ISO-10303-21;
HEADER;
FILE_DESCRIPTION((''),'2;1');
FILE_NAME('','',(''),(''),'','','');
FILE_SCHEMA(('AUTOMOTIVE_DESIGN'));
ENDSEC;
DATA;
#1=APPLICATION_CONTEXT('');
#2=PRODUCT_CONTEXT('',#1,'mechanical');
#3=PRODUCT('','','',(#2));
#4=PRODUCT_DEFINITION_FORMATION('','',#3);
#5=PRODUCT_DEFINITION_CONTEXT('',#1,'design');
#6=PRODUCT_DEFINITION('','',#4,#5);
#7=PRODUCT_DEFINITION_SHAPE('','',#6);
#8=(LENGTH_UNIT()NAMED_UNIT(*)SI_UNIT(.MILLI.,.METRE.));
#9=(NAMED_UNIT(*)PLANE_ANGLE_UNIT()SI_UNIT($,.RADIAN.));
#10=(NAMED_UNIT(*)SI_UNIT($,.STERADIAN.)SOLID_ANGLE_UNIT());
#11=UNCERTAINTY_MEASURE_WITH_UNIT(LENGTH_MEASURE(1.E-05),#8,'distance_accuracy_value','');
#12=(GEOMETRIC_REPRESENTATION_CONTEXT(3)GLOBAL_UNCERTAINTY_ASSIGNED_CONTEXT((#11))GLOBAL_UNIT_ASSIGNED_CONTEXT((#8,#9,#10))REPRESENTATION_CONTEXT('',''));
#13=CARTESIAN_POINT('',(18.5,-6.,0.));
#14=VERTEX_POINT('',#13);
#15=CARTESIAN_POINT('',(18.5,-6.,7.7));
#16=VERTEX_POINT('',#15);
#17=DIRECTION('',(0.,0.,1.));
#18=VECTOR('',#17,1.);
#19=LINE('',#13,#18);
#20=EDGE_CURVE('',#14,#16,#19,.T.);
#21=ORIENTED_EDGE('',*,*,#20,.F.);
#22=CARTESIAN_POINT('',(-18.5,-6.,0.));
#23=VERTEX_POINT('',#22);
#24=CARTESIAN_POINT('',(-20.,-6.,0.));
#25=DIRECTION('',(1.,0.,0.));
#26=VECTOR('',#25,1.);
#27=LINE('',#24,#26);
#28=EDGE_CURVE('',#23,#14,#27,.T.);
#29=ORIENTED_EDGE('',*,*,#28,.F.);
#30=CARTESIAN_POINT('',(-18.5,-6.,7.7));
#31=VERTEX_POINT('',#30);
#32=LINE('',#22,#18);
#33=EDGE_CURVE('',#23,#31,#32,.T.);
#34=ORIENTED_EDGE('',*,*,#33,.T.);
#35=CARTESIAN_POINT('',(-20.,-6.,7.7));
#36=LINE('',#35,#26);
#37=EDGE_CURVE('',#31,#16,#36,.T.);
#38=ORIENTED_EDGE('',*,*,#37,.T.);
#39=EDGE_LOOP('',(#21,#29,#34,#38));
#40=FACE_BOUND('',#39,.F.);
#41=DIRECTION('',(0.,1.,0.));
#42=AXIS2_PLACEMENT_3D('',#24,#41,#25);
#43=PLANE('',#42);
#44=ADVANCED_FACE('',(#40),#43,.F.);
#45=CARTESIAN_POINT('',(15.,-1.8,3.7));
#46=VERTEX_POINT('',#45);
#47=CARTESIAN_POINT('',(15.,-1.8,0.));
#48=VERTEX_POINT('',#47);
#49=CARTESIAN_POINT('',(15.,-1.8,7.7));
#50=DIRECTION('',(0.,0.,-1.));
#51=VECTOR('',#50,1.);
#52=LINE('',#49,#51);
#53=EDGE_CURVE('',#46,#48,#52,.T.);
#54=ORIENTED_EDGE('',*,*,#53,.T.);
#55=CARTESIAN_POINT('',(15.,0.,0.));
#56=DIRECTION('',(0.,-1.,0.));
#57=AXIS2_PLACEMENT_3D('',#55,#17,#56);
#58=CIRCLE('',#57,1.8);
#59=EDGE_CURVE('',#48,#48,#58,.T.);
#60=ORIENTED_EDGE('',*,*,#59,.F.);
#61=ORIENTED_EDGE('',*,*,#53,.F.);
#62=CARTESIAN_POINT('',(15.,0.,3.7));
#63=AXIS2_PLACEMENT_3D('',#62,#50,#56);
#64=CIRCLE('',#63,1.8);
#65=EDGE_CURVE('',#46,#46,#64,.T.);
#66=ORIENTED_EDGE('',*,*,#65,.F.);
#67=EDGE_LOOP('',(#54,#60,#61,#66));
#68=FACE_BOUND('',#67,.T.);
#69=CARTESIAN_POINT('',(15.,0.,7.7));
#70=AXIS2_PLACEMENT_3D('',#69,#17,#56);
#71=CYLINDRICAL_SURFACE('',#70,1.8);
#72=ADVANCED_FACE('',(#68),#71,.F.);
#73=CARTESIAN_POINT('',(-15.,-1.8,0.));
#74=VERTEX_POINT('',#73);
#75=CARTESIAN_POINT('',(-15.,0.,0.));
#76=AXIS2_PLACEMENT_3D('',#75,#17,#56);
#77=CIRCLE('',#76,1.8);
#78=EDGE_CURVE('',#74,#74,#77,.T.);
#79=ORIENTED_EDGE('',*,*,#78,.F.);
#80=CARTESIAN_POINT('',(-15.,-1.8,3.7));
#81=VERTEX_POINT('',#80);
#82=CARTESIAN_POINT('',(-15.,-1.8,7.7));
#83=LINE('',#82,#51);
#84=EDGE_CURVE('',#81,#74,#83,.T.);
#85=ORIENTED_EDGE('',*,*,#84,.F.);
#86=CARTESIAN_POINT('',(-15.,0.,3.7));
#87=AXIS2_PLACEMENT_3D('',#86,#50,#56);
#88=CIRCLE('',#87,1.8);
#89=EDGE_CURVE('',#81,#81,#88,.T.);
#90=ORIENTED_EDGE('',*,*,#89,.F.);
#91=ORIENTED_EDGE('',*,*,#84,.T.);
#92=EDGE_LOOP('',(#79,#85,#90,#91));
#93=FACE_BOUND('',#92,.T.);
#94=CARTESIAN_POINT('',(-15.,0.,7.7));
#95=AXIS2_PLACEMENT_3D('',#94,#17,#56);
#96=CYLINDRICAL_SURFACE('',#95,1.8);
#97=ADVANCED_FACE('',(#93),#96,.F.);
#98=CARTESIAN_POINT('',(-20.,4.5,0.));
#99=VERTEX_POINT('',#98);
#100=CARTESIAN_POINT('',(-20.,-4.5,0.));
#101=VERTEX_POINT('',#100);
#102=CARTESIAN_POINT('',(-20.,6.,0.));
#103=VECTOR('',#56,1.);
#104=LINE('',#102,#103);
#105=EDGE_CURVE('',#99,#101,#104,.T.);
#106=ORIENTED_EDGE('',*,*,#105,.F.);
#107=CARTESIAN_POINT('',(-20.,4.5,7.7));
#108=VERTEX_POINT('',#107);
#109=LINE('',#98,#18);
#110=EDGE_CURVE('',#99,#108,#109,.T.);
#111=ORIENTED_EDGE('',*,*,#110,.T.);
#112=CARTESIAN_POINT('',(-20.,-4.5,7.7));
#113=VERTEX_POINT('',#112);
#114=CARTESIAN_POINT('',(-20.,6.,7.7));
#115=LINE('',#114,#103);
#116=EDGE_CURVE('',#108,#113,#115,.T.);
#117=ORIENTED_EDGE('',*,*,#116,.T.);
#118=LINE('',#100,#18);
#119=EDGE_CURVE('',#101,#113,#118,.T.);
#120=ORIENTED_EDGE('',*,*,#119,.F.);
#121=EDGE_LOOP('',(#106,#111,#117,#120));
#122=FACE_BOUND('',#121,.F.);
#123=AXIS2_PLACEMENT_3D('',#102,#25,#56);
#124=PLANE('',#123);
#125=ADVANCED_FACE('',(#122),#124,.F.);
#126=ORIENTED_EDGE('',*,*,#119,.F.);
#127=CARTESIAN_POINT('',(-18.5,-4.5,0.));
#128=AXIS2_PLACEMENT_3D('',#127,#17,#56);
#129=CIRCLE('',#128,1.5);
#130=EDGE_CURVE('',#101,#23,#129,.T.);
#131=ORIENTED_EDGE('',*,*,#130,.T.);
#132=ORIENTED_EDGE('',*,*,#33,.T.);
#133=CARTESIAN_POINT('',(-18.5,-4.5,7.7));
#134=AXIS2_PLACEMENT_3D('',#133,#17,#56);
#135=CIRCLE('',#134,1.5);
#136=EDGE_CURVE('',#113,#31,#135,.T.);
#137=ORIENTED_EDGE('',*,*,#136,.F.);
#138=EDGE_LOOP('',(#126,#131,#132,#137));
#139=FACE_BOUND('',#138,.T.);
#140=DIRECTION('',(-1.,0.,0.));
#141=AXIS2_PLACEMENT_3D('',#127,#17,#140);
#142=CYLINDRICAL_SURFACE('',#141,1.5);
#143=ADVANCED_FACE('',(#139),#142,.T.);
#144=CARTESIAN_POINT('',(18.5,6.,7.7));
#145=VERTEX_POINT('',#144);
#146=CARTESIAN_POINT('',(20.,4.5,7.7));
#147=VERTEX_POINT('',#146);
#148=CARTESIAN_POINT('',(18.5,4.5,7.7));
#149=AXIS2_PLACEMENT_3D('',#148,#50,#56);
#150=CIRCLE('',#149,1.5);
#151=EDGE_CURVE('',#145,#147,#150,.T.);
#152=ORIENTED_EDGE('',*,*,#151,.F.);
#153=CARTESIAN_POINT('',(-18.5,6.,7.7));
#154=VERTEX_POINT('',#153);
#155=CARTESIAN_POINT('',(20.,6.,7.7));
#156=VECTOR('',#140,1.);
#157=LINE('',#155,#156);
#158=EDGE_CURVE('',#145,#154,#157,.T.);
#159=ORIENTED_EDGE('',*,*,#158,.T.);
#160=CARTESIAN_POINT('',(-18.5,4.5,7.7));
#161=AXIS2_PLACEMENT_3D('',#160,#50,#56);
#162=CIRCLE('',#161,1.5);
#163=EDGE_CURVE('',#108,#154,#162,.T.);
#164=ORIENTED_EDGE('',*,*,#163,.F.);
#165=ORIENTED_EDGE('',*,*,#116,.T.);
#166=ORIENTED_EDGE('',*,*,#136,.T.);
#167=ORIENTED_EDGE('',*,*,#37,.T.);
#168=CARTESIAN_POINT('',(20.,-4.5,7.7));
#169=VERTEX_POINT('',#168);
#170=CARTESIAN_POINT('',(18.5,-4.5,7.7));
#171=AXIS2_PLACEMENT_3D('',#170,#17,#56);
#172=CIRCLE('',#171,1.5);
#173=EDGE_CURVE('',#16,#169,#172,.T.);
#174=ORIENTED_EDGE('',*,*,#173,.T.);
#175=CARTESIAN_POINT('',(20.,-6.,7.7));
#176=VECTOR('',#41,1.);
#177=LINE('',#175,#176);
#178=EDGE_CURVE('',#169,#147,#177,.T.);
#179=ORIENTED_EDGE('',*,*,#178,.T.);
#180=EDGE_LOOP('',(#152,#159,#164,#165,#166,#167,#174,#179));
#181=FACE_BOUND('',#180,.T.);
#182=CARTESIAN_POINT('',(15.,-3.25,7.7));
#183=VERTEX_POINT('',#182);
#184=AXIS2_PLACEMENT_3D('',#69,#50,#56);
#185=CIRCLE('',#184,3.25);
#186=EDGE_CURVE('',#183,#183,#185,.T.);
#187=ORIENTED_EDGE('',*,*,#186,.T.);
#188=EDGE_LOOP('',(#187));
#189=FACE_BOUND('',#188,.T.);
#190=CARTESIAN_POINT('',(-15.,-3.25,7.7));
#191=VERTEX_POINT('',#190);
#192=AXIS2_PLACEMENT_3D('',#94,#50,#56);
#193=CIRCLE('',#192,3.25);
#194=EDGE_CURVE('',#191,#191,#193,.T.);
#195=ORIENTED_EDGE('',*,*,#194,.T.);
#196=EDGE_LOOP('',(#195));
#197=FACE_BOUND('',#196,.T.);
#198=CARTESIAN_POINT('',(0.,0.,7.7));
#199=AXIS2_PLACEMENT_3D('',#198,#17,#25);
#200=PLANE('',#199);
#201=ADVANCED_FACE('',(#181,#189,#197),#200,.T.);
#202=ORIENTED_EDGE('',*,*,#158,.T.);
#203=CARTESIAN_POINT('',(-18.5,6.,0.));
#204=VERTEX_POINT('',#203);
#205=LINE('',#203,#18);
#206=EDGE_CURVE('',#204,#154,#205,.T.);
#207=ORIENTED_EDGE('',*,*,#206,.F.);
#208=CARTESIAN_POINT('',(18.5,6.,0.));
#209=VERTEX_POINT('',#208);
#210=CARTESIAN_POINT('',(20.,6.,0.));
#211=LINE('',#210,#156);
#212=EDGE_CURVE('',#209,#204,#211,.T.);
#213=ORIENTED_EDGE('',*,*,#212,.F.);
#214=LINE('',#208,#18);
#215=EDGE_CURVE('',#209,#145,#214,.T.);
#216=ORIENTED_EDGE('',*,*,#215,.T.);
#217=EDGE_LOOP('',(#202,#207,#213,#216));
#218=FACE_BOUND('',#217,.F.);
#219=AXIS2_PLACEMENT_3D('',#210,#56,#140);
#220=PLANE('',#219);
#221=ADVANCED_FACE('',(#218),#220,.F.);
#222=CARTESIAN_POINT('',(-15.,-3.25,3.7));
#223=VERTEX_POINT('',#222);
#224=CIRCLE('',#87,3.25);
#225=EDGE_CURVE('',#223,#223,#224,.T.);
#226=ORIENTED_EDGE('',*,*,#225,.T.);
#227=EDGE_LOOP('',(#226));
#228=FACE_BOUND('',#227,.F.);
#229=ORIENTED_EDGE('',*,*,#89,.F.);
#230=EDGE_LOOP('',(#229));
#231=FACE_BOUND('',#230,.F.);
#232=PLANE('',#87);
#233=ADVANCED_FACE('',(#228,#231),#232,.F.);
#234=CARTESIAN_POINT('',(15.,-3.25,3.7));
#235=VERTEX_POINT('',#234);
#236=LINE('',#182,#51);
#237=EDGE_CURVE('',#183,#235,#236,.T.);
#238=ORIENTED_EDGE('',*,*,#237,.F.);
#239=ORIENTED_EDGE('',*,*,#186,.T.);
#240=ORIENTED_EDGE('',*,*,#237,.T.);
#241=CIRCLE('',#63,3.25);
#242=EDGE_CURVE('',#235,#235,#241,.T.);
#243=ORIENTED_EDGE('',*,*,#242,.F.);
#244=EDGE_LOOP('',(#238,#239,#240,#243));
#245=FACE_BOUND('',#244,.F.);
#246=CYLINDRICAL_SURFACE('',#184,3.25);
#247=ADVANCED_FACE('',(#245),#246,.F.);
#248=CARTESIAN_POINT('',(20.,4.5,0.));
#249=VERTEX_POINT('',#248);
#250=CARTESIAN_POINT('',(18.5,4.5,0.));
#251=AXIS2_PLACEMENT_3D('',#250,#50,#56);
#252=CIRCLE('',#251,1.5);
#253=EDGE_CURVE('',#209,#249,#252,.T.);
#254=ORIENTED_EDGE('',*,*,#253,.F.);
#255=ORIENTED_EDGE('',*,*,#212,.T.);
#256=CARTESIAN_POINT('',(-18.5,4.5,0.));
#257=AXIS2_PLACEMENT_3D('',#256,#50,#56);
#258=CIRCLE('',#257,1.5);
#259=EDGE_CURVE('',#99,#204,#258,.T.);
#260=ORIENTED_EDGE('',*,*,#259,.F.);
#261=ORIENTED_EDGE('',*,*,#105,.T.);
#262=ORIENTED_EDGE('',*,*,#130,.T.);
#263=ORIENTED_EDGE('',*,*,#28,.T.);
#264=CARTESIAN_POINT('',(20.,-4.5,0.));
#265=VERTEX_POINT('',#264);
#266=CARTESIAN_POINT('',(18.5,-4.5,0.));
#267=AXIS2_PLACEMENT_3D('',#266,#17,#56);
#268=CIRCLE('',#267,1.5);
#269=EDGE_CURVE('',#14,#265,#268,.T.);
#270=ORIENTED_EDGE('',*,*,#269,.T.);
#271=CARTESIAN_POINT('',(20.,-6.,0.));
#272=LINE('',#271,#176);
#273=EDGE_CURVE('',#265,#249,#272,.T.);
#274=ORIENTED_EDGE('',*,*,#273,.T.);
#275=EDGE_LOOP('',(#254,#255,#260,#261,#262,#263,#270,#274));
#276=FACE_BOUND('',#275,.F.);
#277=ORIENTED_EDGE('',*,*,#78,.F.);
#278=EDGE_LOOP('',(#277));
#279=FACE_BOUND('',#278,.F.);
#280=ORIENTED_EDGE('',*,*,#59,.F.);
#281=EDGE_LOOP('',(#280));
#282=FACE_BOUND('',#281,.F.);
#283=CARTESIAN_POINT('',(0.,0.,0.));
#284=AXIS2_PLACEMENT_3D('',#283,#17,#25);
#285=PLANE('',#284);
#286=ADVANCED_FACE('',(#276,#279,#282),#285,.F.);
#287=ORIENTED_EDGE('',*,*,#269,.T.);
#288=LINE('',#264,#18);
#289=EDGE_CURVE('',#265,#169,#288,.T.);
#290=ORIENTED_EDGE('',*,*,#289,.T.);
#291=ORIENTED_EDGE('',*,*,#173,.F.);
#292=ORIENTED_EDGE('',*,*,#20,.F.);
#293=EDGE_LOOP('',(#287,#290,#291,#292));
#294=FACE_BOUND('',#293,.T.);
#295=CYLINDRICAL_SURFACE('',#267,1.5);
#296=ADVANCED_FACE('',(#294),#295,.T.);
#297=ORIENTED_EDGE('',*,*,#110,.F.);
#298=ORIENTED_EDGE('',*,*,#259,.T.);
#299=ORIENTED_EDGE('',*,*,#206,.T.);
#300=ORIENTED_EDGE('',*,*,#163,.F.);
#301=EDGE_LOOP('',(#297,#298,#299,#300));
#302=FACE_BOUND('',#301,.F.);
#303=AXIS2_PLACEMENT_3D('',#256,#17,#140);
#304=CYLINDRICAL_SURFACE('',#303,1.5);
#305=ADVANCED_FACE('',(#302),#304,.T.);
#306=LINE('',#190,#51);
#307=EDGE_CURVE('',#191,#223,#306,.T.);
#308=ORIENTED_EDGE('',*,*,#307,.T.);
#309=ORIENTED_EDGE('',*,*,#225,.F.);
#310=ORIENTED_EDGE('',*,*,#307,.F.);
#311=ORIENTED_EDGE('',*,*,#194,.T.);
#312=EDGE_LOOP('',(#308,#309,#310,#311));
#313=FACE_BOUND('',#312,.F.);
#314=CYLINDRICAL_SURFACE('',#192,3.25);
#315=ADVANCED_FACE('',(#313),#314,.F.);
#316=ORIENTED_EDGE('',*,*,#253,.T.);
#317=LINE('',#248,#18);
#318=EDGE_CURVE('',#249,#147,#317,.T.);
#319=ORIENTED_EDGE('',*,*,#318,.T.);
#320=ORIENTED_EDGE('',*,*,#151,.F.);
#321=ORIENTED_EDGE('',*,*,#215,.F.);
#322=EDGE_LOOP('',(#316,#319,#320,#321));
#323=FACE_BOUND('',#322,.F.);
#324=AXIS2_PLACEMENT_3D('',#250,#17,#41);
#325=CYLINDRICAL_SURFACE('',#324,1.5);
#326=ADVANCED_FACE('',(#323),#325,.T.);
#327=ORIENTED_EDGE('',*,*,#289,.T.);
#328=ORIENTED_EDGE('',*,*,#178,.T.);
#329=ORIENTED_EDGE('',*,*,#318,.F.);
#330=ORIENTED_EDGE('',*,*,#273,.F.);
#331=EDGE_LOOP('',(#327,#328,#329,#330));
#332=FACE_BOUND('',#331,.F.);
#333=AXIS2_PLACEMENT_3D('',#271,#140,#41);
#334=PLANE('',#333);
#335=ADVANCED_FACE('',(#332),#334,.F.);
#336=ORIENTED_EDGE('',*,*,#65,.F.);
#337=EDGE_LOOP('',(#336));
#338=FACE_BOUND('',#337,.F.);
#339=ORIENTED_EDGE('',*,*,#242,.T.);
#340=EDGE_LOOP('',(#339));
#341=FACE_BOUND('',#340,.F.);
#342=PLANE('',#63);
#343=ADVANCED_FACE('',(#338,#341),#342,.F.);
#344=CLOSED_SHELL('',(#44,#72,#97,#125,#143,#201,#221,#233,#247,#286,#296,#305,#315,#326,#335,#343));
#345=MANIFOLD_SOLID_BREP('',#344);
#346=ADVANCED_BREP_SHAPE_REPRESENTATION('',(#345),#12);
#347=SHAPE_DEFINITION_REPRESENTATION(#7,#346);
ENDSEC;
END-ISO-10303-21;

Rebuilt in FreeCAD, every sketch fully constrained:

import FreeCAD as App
import Part
import Sketcher

V = App.Vector
Q = App.Units.Quantity


def edges_at(feature, points):
    """Names of the edges that pass closest to the given points."""
    edges = feature.Shape.Edges
    near = lambda p: min(range(len(edges)), key=lambda i: edges[i].distToShape(Part.Vertex(*p))[0])
    return sorted({f"Edge{near(p) + 1}" for p in points})


def add_polygon(sketch, points):
    """Adds a closed chain of lines whose ends are joined by coincident constraints."""
    first, n = sketch.GeometryCount, len(points)
    for a, b in zip(points, points[1:] + points[:1]):
        sketch.addGeometry(Part.LineSegment(App.Vector(*a, 0), App.Vector(*b, 0)), False)
    for i in range(n):
        sketch.addConstraint(Sketcher.Constraint("Coincident", first + i, 2, first + (i + 1) % n, 1))

doc = App.newDocument("Part")
body = doc.addObject("PartDesign::Body", "Body")

# Sketch on XY plane
sketch1 = body.newObject("Sketcher::SketchObject", "Sketch")
sketch1.AttachmentSupport = (doc.getObject("XY_Plane"), [""])
sketch1.MapMode = "FlatFace"
add_polygon(sketch1, [(20, 6), (-20, 6), (-20, -6), (20, -6)])  # lines 0-3
sketch1.addConstraint([
    Sketcher.Constraint("Horizontal", 0),
    Sketcher.Constraint("Vertical", 1),
    Sketcher.Constraint("Horizontal", 2),
    Sketcher.Constraint("Vertical", 3),
    Sketcher.Constraint("Symmetric", 0, 2, 2, 2, -1, 1),
    Sketcher.Constraint("DistanceX", 0, 2, -1, 1, Q("20 mm")),
    Sketcher.Constraint("DistanceY", 1, 2, 1, 1, Q("12 mm")),
])
pad1 = body.newObject("PartDesign::Pad", "Pad")
pad1.Profile = sketch1
pad1.Length = 7.7

# Sketch on XY plane
sketch2 = body.newObject("Sketcher::SketchObject", "Sketch001")
sketch2.AttachmentSupport = (doc.getObject("XY_Plane"), [""])
sketch2.MapMode = "FlatFace"
sketch2.AttachmentOffset = App.Placement(V(0, 0, 7.7), App.Rotation())
sketch2.addGeometry(Part.Circle(V(15, 0, 0), V(0, 0, 1), 1.8), False)
sketch2.addConstraint([
    Sketcher.Constraint("PointOnObject", 0, 3, -1),
    Sketcher.Constraint("Diameter", 0, Q("3.6 mm")),
    Sketcher.Constraint("DistanceX", -1, 1, 0, 3, Q("15 mm")),
])
doc.recompute()
hole = body.newObject("PartDesign::Hole", "Hole")
hole.Profile = sketch2
hole.ThreadType = "None"
hole.Diameter = 3.6
hole.DepthType = "ThroughAll"
hole.HoleCutType = "Counterbore"
hole.HoleCutDiameter = 6.5
hole.HoleCutDepth = 4

# Sketch on XY plane
sketch3 = body.newObject("Sketcher::SketchObject", "Sketch002")
sketch3.AttachmentSupport = (doc.getObject("XY_Plane"), [""])
sketch3.MapMode = "FlatFace"
sketch3.AttachmentOffset = App.Placement(V(0, 0, 7.7), App.Rotation())
sketch3.addGeometry(Part.Circle(V(-15, 0, 0), V(0, 0, 1), 1.8), False)
sketch3.addConstraint([
    Sketcher.Constraint("PointOnObject", 0, 3, -1),
    Sketcher.Constraint("Diameter", 0, Q("3.6 mm")),
    Sketcher.Constraint("DistanceX", 0, 3, -1, 1, Q("15 mm")),
])
doc.recompute()
hole2 = body.newObject("PartDesign::Hole", "Hole001")
hole2.Profile = sketch3
hole2.ThreadType = "None"
hole2.Diameter = 3.6
hole2.DepthType = "ThroughAll"
hole2.HoleCutType = "Counterbore"
hole2.HoleCutDiameter = 6.5
hole2.HoleCutDepth = 4
doc.recompute()

fillet = body.newObject("PartDesign::Fillet", "Fillet")
fillet.Base = (hole2, edges_at(hole2, [
    (20, 6, 3.85),
    (20, -6, 3.85),
    (-20, -6, 3.85),
    (-20, 6, 3.85),
]))
fillet.Radius = 1.5

doc.recompute()
